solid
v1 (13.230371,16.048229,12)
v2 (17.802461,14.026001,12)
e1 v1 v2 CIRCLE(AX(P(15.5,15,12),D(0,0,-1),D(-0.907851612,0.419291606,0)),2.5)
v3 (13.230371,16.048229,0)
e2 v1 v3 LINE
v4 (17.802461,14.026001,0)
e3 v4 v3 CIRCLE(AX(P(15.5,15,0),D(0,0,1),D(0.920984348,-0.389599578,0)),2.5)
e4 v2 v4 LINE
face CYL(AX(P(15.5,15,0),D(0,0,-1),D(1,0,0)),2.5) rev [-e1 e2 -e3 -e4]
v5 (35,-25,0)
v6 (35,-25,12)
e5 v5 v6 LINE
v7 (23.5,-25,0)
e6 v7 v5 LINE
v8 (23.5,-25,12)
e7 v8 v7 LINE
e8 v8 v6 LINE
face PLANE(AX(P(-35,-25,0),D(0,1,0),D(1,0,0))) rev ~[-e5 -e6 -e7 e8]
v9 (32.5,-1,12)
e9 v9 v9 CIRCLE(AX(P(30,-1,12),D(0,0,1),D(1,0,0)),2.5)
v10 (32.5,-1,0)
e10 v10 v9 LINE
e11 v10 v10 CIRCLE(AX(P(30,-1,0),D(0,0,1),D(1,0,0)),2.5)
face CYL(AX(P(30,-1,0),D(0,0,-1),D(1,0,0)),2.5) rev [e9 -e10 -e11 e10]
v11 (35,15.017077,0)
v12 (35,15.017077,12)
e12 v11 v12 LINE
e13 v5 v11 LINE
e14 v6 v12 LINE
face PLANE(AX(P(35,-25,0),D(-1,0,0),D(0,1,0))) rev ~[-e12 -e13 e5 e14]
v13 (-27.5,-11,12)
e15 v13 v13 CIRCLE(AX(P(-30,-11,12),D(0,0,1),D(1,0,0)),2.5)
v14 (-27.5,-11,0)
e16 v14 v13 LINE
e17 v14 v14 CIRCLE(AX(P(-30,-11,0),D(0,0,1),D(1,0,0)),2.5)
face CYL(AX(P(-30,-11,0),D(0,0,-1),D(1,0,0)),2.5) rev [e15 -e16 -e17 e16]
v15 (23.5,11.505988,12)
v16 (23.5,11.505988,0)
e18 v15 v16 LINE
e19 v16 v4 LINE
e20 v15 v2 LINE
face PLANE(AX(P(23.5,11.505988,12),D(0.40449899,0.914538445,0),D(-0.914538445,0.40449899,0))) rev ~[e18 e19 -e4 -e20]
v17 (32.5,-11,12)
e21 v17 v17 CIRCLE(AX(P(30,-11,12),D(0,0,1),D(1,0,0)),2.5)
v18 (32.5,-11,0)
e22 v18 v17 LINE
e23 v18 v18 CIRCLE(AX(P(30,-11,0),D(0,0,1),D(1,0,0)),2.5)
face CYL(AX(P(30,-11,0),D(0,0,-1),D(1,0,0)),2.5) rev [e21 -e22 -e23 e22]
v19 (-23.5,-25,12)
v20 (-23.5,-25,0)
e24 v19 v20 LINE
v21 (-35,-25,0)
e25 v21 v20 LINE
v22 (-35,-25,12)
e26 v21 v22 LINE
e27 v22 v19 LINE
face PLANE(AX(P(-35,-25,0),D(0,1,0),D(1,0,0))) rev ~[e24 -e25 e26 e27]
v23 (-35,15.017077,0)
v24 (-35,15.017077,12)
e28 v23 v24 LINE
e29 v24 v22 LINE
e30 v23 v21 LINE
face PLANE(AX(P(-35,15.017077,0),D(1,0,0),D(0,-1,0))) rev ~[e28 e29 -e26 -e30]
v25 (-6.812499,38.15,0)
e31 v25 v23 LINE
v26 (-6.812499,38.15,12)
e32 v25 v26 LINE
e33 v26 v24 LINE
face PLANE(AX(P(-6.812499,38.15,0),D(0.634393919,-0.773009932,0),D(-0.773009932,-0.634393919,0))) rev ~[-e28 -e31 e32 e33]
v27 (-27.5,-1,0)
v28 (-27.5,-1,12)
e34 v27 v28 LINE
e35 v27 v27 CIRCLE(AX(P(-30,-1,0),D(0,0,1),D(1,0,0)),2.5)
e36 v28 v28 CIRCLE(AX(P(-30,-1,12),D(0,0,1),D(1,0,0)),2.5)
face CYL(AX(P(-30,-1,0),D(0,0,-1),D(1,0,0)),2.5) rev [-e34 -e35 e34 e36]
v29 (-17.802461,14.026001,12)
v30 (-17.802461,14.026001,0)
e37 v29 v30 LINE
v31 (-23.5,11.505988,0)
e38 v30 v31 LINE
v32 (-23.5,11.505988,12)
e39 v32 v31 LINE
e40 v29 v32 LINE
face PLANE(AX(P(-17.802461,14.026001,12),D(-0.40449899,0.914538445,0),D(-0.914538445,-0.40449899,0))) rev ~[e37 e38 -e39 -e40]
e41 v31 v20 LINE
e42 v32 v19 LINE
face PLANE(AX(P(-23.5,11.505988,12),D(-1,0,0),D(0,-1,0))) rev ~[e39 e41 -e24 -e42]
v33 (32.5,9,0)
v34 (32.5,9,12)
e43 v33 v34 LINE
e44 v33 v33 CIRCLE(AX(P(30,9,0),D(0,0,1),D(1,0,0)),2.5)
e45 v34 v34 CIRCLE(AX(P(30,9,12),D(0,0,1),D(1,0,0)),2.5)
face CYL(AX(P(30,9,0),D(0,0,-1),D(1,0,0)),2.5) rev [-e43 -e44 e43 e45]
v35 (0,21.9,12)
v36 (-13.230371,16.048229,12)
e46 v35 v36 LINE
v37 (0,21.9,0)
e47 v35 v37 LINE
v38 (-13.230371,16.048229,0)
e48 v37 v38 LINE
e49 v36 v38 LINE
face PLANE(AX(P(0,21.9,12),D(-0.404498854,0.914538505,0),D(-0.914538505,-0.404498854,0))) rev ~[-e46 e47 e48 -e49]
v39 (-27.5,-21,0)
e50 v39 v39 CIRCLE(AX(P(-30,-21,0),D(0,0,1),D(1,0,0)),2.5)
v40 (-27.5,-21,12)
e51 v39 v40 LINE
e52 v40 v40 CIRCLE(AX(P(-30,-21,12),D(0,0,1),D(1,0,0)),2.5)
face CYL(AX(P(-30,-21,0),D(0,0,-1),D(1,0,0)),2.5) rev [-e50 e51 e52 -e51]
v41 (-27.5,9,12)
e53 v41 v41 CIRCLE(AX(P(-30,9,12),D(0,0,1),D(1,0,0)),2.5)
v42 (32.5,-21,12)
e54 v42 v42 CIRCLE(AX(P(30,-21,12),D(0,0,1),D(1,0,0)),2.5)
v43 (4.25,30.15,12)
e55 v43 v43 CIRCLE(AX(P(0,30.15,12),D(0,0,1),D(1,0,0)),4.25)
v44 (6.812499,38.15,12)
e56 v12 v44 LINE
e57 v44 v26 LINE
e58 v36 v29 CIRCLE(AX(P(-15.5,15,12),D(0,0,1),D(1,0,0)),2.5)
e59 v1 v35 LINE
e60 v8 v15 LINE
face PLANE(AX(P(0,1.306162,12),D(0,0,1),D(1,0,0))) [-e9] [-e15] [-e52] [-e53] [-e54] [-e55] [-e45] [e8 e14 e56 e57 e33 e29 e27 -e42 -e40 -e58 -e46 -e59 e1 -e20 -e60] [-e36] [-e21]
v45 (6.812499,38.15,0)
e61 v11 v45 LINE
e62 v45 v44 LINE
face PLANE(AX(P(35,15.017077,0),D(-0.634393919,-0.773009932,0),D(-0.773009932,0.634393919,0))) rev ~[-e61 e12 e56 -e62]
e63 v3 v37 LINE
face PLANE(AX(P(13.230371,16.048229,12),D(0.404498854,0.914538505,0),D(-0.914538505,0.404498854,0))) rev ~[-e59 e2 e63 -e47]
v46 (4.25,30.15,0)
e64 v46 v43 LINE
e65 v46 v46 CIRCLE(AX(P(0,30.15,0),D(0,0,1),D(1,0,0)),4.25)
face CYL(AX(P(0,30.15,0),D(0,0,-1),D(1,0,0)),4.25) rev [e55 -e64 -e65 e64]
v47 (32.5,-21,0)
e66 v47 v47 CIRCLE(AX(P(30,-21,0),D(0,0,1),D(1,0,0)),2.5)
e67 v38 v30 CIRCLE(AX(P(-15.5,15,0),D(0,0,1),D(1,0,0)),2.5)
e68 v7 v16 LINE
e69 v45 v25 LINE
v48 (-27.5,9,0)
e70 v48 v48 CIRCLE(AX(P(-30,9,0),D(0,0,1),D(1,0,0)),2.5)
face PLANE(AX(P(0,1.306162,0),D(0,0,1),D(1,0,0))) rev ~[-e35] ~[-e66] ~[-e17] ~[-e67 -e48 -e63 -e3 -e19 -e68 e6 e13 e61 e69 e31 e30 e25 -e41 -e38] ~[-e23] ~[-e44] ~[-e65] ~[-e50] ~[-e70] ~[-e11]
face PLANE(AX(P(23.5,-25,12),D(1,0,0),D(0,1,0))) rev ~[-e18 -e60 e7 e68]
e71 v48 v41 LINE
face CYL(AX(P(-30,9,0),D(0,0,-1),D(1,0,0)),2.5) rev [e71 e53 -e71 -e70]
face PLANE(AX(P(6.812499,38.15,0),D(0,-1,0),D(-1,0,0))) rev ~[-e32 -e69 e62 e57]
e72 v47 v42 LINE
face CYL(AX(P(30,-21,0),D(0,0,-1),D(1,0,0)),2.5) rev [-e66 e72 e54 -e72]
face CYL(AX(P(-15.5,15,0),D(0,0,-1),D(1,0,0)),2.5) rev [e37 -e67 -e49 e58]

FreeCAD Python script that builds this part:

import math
import FreeCAD as App
import Part
import Sketcher
from FreeCAD import Vector
Q = App.Units.Quantity

doc = App.newDocument("Part")
body = doc.addObject("PartDesign::Body", "Body")

# Sketch on XY plane
sketch1 = body.newObject("Sketcher::SketchObject", "Sketch")
sketch1.AttachmentSupport = (doc.getObject("XY_Plane"), [""])
sketch1.MapMode = "FlatFace"
sketch1.addGeometry([
    Part.LineSegment(Vector(-6.8, 38.1, 0), Vector(-35, 15, 0)),  # 0
    Part.LineSegment(Vector(-35, 15, 0), Vector(-35, -25, 0)),  # 1
    Part.LineSegment(Vector(-35, -25, 0), Vector(35, -25, 0)),  # 2
    Part.LineSegment(Vector(35, -25, 0), Vector(35, 15, 0)),  # 3
    Part.LineSegment(Vector(35, 15, 0), Vector(6.8, 38.1, 0)),  # 4
    Part.LineSegment(Vector(6.8, 38.1, 0), Vector(-6.8, 38.1, 0)),  # 5
    Part.Circle(Vector(-30, -21, 0), Vector(0, 0, 1), 2.5),  # 6
    Part.Circle(Vector(-30, -11, 0), Vector(0, 0, 1), 2.5),  # 7
    Part.Circle(Vector(-15.5, -15, 0), Vector(0, 0, 1), 2.5),  # 8
    Part.Circle(Vector(-30, -1, 0), Vector(0, 0, 1), 2.5),  # 9
    Part.Circle(Vector(15.5, -15, 0), Vector(0, 0, 1), 2.5),  # 10
    Part.Circle(Vector(30, -21, 0), Vector(0, 0, 1), 2.5),  # 11
    Part.Circle(Vector(30, -11, 0), Vector(0, 0, 1), 2.5),  # 12
    Part.Circle(Vector(0, 0, 0), Vector(0, 0, 1), 12.5),  # 13
    Part.Circle(Vector(30, -1, 0), Vector(0, 0, 1), 2.5),  # 14
    Part.Circle(Vector(-30, 9, 0), Vector(0, 0, 1), 2.5),  # 15
    Part.Circle(Vector(-15.5, 15, 0), Vector(0, 0, 1), 2.5),  # 16
    Part.Circle(Vector(15.5, 15, 0), Vector(0, 0, 1), 2.5),  # 17
    Part.Circle(Vector(30, 9, 0), Vector(0, 0, 1), 2.5),  # 18
    Part.Circle(Vector(0, 30.1, 0), Vector(0, 0, 1), 4.2),  # 19
], False)
sketch1.addConstraint([
    Sketcher.Constraint("Coincident", 0, 2, 1, 1),
    Sketcher.Constraint("Coincident", 1, 2, 2, 1),
    Sketcher.Constraint("Coincident", 2, 2, 3, 1),
    Sketcher.Constraint("Coincident", 3, 2, 4, 1),
    Sketcher.Constraint("Coincident", 4, 2, 5, 1),
    Sketcher.Constraint("Coincident", 5, 2, 0, 1),
    Sketcher.Constraint("Vertical", 1),
    Sketcher.Constraint("Horizontal", 2),
    Sketcher.Constraint("Vertical", 3),
    Sketcher.Constraint("Horizontal", 5),
    Sketcher.Constraint("Coincident", 13, 3, -1, 1),
    Sketcher.Constraint("Equal", 6, 7),
    Sketcher.Constraint("Equal", 7, 8),
    Sketcher.Constraint("Equal", 8, 9),
    Sketcher.Constraint("Equal", 9, 10),
    Sketcher.Constraint("Equal", 10, 11),
    Sketcher.Constraint("Equal", 11, 12),
    Sketcher.Constraint("Equal", 12, 14),
    Sketcher.Constraint("Equal", 14, 15),
    Sketcher.Constraint("Equal", 15, 16),
    Sketcher.Constraint("Equal", 16, 17),
    Sketcher.Constraint("Equal", 17, 18),
    Sketcher.Constraint("Symmetric", 10, 3, 16, 3, -1, 1),
    Sketcher.Constraint("Symmetric", 8, 3, 17, 3, -1, 1),
    Sketcher.Constraint("Symmetric", 8, 3, 10, 3, -2),
    Sketcher.Constraint("Symmetric", 6, 3, 11, 3, -2),
    Sketcher.Constraint("Symmetric", 7, 3, 12, 3, -2),
    Sketcher.Constraint("Symmetric", 9, 3, 14, 3, -2),
    Sketcher.Constraint("Symmetric", 15, 3, 18, 3, -2),
    Sketcher.Constraint("Symmetric", 0, 2, 3, 2, -2),
    Sketcher.Constraint("PointOnObject", 19, 3, -2),
    Sketcher.Constraint("Vertical", 6, 3, 7, 3),
    Sketcher.Constraint("Vertical", 7, 3, 9, 3),
    Sketcher.Constraint("Vertical", 9, 3, 15, 3),
    Sketcher.Constraint("Equal", 0, 4),
    Sketcher.Constraint("Diameter", 6, Q("5 mm")),
    Sketcher.Constraint("Diameter", 13, Q("25 mm")),
    Sketcher.Constraint("Diameter", 19, Q("8.5 mm")),
    Sketcher.Constraint("DistanceX", 2, 1, 2, 2, Q("70 mm")),
    Sketcher.Constraint("DistanceX", 6, 3, -1, 1, Q("30 mm")),
    Sketcher.Constraint("DistanceY", 6, 3, -1, 1, Q("21 mm")),
    Sketcher.Constraint("DistanceY", 7, 3, -1, 1, Q("11 mm")),
    Sketcher.Constraint("DistanceY", 8, 3, -1, 1, Q("15 mm")),
    Sketcher.Constraint("DistanceY", 9, 3, -1, 1, Q("1 mm")),
    Sketcher.Constraint("DistanceY", -1, 1, 15, 3, Q("9 mm")),
    Sketcher.Constraint("DistanceY", 1, 2, -1, 1, Q("25 mm")),
    Sketcher.Constraint("DistanceX", 8, 3, 10, 3, Q("31 mm")),
    Sketcher.Constraint("DistanceY", 19, 3, 4, 2, Q("8 mm")),
    Sketcher.Constraint("DistanceY", -1, 1, 19, 3, Q("30.15 mm")),
    Sketcher.Constraint("DistanceX", -1, 1, 4, 2, Q("6.812499 mm")),
    Sketcher.Constraint("DistanceY", 1, 2, 1, 1, Q("40.017077 mm")),
])
pad1 = body.newObject("PartDesign::Pad", "Pad")
pad1.Profile = sketch1
pad1.Length = 12

# Sketch on XY plane
sketch2 = body.newObject("Sketcher::SketchObject", "Sketch001")
sketch2.AttachmentSupport = (doc.getObject("XY_Plane"), [""])
sketch2.MapMode = "FlatFace"
sketch2.AttachmentOffset = App.Placement(Vector(0, 0, 12), App.Rotation())
sketch2.addGeometry([
    Part.LineSegment(Vector(-23.5, 11.5, 0), Vector(-23.5, -25, 0)),  # 0
    Part.LineSegment(Vector(-23.5, -25, 0), Vector(23.5, -25, 0)),  # 1
    Part.LineSegment(Vector(23.5, -25, 0), Vector(23.5, 11.5, 0)),  # 2
    Part.LineSegment(Vector(23.5, 11.5, 0), Vector(17.8, 14, 0)),  # 3
    Part.ArcOfCircle(Part.Circle(Vector(15.5, 15, 0), Vector(0, 0, 1), 2.5), math.radians(155), math.radians(337)),  # 4
    Part.LineSegment(Vector(13.2, 16, 0), Vector(0, 21.9, 0)),  # 5
    Part.LineSegment(Vector(0, 21.9, 0), Vector(-13.2, 16, 0)),  # 6
    Part.ArcOfCircle(Part.Circle(Vector(-15.5, 15, 0), Vector(0, 0, 1), 2.5), math.radians(0), math.radians(25)),  # 7
    Part.ArcOfCircle(Part.Circle(Vector(-15.5, 15, 0), Vector(0, 0, 1), 2.5), math.radians(-157), math.radians(0)),  # 8
    Part.LineSegment(Vector(-17.8, 14, 0), Vector(-23.5, 11.5, 0)),  # 9
    Part.Circle(Vector(-15.5, -15, 0), Vector(0, 0, 1), 2.5),  # 10
    Part.Circle(Vector(15.5, -15, 0), Vector(0, 0, 1), 2.5),  # 11
    Part.Circle(Vector(0, 0, 0), Vector(0, 0, 1), 12.5),  # 12
], False)
sketch2.addConstraint([
    Sketcher.Constraint("Coincident", 0, 2, 1, 1),
    Sketcher.Constraint("Coincident", 1, 2, 2, 1),
    Sketcher.Constraint("Coincident", 2, 2, 3, 1),
    Sketcher.Constraint("Coincident", 3, 2, 4, 2),
    Sketcher.Constraint("Coincident", 4, 1, 5, 1),
    Sketcher.Constraint("Coincident", 5, 2, 6, 1),
    Sketcher.Constraint("Coincident", 6, 2, 7, 2),
    Sketcher.Constraint("Tangent", 7, 1, 8, 2),
    Sketcher.Constraint("Coincident", 8, 1, 9, 1),
    Sketcher.Constraint("Coincident", 9, 2, 0, 1),
    Sketcher.Constraint("Vertical", 0),
    Sketcher.Constraint("Horizontal", 1),
    Sketcher.Constraint("Vertical", 2),
    Sketcher.Constraint("Coincident", 12, 3, -1, 1),
    Sketcher.Constraint("Equal", 4, 8),
    Sketcher.Constraint("Equal", 8, 10),
    Sketcher.Constraint("Equal", 10, 11),
    Sketcher.Constraint("Symmetric", 4, 3, 10, 3, -1, 1),
    Sketcher.Constraint("Symmetric", 7, 3, 11, 3, -1, 1),
    Sketcher.Constraint("Symmetric", 4, 3, 7, 3, -2),
    Sketcher.Constraint("Symmetric", 4, 1, 6, 2, -2),
    Sketcher.Constraint("Symmetric", 2, 2, 9, 2, -2),
    Sketcher.Constraint("PointOnObject", 5, 2, -2),
    Sketcher.Constraint("Parallel", 3, 5),
    Sketcher.Constraint("Parallel", 6, 9),
    Sketcher.Constraint("Horizontal", 8, 3, 7, 1),
    Sketcher.Constraint("Diameter", 10, Q("5 mm")),
    Sketcher.Constraint("Diameter", 12, Q("25 mm")),
    Sketcher.Constraint("DistanceX", 1, 1, 1, 2, Q("47 mm")),
    Sketcher.Constraint("DistanceY", -1, 1, 4, 3, Q("15 mm")),
    Sketcher.Constraint("DistanceY", 0, 2, -1, 1, Q("25 mm")),
    Sketcher.Constraint("DistanceX", 7, 1, -1, 1, Q("13 mm")),
    Sketcher.Constraint("DistanceY", -1, 1, 5, 2, Q("21.9 mm")),
    Sketcher.Constraint("DistanceY", -1, 1, 3, 2, Q("14.026001 mm")),
    Sketcher.Constraint("DistanceY", 0, 2, 0, 1, Q("36.505988 mm")),
])
pocket1 = body.newObject("PartDesign::Pocket", "Pocket")
pocket1.Profile = sketch2
pocket1.Length = 25

doc.recompute()
